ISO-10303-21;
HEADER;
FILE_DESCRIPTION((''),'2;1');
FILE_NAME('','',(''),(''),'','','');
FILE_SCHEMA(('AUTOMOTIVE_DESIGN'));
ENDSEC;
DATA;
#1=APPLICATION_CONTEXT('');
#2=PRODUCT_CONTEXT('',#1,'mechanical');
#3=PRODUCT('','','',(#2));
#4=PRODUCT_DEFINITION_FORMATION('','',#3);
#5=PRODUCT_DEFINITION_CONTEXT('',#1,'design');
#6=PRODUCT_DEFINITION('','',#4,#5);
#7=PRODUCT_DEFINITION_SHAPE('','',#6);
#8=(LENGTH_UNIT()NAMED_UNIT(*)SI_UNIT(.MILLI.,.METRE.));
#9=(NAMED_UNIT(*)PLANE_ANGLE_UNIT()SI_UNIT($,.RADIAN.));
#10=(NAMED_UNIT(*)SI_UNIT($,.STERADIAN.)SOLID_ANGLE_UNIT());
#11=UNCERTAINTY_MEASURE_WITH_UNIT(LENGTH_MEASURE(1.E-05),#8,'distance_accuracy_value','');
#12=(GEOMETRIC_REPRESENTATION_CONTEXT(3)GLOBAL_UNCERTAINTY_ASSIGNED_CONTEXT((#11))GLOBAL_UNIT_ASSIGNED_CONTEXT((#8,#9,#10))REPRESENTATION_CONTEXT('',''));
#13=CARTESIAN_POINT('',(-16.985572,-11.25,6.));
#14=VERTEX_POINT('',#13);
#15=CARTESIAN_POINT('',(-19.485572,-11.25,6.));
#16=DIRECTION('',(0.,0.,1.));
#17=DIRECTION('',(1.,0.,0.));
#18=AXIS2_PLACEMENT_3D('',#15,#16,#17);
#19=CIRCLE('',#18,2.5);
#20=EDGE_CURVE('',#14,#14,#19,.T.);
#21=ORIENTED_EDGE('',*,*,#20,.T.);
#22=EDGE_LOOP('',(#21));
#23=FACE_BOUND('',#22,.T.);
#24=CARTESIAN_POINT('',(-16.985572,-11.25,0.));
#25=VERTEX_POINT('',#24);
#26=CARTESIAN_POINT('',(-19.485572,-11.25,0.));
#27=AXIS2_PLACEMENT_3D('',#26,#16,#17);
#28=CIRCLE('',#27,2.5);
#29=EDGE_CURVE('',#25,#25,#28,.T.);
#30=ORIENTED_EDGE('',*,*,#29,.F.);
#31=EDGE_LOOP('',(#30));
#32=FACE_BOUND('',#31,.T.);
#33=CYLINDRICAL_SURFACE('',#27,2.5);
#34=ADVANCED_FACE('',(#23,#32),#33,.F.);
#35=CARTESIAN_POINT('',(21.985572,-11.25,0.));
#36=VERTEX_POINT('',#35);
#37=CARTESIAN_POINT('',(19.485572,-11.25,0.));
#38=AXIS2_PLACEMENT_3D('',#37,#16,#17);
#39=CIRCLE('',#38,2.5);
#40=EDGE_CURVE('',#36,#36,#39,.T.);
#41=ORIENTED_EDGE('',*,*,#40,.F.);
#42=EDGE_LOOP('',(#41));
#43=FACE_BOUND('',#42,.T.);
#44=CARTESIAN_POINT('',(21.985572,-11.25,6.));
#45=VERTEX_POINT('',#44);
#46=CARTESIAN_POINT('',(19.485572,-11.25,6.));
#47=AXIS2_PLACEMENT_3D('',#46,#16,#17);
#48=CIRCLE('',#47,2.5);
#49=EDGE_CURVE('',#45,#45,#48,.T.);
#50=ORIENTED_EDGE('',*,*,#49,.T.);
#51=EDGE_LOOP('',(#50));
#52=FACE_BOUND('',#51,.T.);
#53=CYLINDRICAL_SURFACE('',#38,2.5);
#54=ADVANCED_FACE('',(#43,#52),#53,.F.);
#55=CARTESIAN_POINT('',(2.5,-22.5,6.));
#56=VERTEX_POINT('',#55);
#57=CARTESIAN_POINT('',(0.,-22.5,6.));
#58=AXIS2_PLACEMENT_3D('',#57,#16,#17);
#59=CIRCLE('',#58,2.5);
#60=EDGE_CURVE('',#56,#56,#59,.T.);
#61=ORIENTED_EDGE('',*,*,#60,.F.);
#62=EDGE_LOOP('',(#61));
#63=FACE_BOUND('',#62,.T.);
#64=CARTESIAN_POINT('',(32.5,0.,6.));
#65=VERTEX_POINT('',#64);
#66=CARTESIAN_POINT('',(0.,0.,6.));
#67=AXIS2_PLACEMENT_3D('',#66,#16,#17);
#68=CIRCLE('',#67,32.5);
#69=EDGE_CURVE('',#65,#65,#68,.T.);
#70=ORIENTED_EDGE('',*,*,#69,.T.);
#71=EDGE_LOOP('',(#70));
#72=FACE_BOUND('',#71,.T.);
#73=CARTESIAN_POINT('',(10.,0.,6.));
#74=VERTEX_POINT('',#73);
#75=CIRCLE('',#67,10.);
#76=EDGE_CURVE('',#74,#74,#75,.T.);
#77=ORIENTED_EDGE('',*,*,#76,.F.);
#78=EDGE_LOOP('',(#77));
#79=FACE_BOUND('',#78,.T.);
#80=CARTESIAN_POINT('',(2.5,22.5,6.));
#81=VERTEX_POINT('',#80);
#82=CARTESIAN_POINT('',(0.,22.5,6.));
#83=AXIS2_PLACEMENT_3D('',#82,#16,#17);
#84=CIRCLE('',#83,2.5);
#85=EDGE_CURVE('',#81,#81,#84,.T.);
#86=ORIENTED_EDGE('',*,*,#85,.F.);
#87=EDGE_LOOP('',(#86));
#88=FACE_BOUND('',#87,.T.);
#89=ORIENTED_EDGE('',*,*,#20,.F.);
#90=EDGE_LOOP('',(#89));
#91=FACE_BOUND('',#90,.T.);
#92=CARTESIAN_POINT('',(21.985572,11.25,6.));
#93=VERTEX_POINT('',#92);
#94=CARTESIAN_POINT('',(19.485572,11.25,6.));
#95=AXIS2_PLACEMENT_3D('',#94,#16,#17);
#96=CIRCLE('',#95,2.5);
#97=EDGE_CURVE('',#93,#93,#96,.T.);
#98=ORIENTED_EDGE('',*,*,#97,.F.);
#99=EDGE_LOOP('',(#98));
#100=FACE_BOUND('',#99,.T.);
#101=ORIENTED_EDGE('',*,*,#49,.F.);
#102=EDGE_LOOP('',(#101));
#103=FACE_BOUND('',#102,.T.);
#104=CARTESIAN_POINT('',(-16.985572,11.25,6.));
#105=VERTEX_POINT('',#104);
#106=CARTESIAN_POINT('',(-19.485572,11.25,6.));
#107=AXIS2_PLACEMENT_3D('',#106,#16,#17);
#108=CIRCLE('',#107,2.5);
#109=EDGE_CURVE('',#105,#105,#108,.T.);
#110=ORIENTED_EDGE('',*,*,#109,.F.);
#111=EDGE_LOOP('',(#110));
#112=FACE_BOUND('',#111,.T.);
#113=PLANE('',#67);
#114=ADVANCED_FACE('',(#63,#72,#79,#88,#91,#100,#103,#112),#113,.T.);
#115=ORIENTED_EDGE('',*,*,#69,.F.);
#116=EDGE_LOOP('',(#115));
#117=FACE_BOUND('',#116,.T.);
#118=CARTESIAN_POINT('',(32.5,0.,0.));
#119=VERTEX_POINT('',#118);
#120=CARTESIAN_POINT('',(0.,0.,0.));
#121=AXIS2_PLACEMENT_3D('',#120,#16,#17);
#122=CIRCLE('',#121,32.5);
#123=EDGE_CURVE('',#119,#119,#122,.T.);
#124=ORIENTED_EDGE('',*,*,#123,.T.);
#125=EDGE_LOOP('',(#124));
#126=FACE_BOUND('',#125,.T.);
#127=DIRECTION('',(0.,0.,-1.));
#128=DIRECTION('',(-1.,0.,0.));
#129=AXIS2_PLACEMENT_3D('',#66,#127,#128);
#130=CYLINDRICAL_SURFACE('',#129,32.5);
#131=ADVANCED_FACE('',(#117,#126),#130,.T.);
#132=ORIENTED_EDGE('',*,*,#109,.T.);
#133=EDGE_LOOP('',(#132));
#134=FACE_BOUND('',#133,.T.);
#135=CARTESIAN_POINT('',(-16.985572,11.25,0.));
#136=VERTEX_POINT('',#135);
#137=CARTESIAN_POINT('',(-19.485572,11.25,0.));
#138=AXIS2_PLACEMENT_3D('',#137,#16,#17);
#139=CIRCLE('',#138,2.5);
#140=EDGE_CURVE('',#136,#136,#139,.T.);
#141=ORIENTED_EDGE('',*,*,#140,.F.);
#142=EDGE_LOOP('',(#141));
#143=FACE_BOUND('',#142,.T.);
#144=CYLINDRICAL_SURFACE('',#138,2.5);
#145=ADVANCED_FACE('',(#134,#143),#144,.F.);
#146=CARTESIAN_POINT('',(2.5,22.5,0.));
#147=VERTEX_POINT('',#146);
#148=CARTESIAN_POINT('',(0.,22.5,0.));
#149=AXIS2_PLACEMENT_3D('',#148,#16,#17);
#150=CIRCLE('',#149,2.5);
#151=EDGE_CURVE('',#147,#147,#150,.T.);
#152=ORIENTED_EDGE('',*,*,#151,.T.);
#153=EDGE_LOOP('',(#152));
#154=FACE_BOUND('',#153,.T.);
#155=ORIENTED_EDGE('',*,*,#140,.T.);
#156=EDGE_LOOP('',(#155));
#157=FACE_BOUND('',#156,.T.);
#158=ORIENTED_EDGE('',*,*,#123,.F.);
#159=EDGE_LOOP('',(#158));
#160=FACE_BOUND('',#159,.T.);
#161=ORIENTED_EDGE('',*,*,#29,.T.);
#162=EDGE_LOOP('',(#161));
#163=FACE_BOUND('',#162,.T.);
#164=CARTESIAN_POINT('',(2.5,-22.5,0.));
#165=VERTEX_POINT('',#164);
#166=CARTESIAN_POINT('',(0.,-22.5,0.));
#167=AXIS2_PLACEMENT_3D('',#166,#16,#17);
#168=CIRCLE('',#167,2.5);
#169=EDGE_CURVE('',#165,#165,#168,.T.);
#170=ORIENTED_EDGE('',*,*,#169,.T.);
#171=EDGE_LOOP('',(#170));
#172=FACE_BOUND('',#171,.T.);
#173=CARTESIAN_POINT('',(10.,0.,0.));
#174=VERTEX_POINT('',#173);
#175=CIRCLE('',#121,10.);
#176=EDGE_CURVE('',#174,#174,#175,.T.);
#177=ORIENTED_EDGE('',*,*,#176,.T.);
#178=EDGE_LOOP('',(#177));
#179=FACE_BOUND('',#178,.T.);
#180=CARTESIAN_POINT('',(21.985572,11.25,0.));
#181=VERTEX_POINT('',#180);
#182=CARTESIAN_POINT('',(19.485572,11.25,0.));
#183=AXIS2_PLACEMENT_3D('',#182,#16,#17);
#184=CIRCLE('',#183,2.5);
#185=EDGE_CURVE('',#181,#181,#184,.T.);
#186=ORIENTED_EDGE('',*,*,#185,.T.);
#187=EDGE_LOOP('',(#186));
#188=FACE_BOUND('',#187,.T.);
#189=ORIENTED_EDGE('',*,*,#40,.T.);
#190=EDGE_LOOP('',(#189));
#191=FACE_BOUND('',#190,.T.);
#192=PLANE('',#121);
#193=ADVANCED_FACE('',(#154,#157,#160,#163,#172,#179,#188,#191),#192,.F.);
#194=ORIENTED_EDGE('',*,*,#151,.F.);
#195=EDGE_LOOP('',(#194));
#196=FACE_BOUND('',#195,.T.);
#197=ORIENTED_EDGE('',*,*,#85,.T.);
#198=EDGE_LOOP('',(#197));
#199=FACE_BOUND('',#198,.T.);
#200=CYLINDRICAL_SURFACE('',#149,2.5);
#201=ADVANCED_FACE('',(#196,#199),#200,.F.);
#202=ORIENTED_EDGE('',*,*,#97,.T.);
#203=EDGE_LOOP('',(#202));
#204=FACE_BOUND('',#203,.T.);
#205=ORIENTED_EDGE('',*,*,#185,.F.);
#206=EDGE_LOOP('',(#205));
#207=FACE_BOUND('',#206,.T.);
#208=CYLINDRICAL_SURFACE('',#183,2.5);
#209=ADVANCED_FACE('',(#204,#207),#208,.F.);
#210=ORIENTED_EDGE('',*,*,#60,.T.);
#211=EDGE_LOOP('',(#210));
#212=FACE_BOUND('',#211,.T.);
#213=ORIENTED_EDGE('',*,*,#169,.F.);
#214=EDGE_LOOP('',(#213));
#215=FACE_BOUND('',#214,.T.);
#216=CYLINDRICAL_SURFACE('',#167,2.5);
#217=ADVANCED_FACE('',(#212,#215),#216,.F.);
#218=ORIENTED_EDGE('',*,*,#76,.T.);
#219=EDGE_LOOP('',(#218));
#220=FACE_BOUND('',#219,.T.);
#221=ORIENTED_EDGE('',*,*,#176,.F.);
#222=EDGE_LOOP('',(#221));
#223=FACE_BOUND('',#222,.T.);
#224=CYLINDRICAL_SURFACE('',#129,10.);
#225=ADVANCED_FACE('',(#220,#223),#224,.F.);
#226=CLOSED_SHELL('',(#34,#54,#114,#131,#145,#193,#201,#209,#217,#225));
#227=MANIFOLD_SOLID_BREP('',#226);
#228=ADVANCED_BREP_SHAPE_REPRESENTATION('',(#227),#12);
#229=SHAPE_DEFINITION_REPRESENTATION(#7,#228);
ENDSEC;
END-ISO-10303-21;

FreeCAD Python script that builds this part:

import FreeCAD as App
import Part
import Sketcher

V = App.Vector
Q = App.Units.Quantity

doc = App.newDocument("Part")
body = doc.addObject("PartDesign::Body", "Body")

sketch1 = body.newObject("Sketcher::SketchObject", "Sketch")
sketch1.AttachmentSupport = (doc.getObject("XY_Plane"), [""])
sketch1.MapMode = "FlatFace"
sketch1.addGeometry(Part.Circle(V(0, 0, 0), V(0, 0, 1), 32.5), False)
sketch1.addGeometry(Part.Circle(V(0, 0, 0), V(0, 0, 1), 10), False)
sketch1.addConstraint(Sketcher.Constraint("Coincident", 0, 3, -1, 1))
sketch1.addConstraint(Sketcher.Constraint("Coincident", 1, 3, -1, 1))
sketch1.addConstraint(Sketcher.Constraint("Diameter", 0, Q("65 mm")))
sketch1.addConstraint(Sketcher.Constraint("Diameter", 1, Q("20 mm")))
pad1 = body.newObject("PartDesign::Pad", "Pad")
pad1.Profile = sketch1
pad1.Length = 6

sketch2 = body.newObject("Sketcher::SketchObject", "Sketch001")
sketch2.AttachmentSupport = (doc.getObject("XY_Plane"), [""])
sketch2.MapMode = "FlatFace"
sketch2.AttachmentOffset = App.Placement(V(0, 0, 6), App.Rotation())
sketch2.addGeometry(Part.Circle(V(0, 22.5, 0), V(0, 0, 1), 2.5), False)
sketch2.addGeometry(Part.Circle(V(19.485572, 11.25, 0), V(0, 0, 1), 2.5), False)
sketch2.addGeometry(Part.Circle(V(19.485572, -11.25, 0), V(0, 0, 1), 2.5), False)
sketch2.addGeometry(Part.Circle(V(0, -22.5, 0), V(0, 0, 1), 2.5), False)
sketch2.addGeometry(Part.Circle(V(-19.485572, -11.25, 0), V(0, 0, 1), 2.5), False)
sketch2.addGeometry(Part.Circle(V(-19.485572, 11.25, 0), V(0, 0, 1), 2.5), False)
sketch2.addConstraint(Sketcher.Constraint("Equal", 0, 1))
sketch2.addConstraint(Sketcher.Constraint("Equal", 1, 2))
sketch2.addConstraint(Sketcher.Constraint("Equal", 2, 3))
sketch2.addConstraint(Sketcher.Constraint("Equal", 3, 4))
sketch2.addConstraint(Sketcher.Constraint("Equal", 4, 5))
sketch2.addConstraint(Sketcher.Constraint("Symmetric", 0, 3, 3, 3, -1, 1))
sketch2.addConstraint(Sketcher.Constraint("Symmetric", 1, 3, 4, 3, -1, 1))
sketch2.addConstraint(Sketcher.Constraint("Symmetric", 2, 3, 5, 3, -1, 1))
sketch2.addConstraint(Sketcher.Constraint("Symmetric", 2, 3, 4, 3, -2))
sketch2.addConstraint(Sketcher.Constraint("PointOnObject", 0, 3, -2))
sketch2.addConstraint(Sketcher.Constraint("Diameter", 0, Q("5 mm")))
sketch2.addConstraint(Sketcher.Constraint("DistanceY", 3, 3, 0, 3, Q("45 mm")))
sketch2.addConstraint(Sketcher.Constraint("DistanceY", 2, 3, 1, 3, Q("22.5 mm")))
sketch2.addConstraint(Sketcher.Constraint("DistanceX", -1, 1, 1, 3, Q("19.485572 mm")))
pocket1 = body.newObject("PartDesign::Pocket", "Pocket")
pocket1.Profile = sketch2
pocket1.Length = 6

doc.recompute()
